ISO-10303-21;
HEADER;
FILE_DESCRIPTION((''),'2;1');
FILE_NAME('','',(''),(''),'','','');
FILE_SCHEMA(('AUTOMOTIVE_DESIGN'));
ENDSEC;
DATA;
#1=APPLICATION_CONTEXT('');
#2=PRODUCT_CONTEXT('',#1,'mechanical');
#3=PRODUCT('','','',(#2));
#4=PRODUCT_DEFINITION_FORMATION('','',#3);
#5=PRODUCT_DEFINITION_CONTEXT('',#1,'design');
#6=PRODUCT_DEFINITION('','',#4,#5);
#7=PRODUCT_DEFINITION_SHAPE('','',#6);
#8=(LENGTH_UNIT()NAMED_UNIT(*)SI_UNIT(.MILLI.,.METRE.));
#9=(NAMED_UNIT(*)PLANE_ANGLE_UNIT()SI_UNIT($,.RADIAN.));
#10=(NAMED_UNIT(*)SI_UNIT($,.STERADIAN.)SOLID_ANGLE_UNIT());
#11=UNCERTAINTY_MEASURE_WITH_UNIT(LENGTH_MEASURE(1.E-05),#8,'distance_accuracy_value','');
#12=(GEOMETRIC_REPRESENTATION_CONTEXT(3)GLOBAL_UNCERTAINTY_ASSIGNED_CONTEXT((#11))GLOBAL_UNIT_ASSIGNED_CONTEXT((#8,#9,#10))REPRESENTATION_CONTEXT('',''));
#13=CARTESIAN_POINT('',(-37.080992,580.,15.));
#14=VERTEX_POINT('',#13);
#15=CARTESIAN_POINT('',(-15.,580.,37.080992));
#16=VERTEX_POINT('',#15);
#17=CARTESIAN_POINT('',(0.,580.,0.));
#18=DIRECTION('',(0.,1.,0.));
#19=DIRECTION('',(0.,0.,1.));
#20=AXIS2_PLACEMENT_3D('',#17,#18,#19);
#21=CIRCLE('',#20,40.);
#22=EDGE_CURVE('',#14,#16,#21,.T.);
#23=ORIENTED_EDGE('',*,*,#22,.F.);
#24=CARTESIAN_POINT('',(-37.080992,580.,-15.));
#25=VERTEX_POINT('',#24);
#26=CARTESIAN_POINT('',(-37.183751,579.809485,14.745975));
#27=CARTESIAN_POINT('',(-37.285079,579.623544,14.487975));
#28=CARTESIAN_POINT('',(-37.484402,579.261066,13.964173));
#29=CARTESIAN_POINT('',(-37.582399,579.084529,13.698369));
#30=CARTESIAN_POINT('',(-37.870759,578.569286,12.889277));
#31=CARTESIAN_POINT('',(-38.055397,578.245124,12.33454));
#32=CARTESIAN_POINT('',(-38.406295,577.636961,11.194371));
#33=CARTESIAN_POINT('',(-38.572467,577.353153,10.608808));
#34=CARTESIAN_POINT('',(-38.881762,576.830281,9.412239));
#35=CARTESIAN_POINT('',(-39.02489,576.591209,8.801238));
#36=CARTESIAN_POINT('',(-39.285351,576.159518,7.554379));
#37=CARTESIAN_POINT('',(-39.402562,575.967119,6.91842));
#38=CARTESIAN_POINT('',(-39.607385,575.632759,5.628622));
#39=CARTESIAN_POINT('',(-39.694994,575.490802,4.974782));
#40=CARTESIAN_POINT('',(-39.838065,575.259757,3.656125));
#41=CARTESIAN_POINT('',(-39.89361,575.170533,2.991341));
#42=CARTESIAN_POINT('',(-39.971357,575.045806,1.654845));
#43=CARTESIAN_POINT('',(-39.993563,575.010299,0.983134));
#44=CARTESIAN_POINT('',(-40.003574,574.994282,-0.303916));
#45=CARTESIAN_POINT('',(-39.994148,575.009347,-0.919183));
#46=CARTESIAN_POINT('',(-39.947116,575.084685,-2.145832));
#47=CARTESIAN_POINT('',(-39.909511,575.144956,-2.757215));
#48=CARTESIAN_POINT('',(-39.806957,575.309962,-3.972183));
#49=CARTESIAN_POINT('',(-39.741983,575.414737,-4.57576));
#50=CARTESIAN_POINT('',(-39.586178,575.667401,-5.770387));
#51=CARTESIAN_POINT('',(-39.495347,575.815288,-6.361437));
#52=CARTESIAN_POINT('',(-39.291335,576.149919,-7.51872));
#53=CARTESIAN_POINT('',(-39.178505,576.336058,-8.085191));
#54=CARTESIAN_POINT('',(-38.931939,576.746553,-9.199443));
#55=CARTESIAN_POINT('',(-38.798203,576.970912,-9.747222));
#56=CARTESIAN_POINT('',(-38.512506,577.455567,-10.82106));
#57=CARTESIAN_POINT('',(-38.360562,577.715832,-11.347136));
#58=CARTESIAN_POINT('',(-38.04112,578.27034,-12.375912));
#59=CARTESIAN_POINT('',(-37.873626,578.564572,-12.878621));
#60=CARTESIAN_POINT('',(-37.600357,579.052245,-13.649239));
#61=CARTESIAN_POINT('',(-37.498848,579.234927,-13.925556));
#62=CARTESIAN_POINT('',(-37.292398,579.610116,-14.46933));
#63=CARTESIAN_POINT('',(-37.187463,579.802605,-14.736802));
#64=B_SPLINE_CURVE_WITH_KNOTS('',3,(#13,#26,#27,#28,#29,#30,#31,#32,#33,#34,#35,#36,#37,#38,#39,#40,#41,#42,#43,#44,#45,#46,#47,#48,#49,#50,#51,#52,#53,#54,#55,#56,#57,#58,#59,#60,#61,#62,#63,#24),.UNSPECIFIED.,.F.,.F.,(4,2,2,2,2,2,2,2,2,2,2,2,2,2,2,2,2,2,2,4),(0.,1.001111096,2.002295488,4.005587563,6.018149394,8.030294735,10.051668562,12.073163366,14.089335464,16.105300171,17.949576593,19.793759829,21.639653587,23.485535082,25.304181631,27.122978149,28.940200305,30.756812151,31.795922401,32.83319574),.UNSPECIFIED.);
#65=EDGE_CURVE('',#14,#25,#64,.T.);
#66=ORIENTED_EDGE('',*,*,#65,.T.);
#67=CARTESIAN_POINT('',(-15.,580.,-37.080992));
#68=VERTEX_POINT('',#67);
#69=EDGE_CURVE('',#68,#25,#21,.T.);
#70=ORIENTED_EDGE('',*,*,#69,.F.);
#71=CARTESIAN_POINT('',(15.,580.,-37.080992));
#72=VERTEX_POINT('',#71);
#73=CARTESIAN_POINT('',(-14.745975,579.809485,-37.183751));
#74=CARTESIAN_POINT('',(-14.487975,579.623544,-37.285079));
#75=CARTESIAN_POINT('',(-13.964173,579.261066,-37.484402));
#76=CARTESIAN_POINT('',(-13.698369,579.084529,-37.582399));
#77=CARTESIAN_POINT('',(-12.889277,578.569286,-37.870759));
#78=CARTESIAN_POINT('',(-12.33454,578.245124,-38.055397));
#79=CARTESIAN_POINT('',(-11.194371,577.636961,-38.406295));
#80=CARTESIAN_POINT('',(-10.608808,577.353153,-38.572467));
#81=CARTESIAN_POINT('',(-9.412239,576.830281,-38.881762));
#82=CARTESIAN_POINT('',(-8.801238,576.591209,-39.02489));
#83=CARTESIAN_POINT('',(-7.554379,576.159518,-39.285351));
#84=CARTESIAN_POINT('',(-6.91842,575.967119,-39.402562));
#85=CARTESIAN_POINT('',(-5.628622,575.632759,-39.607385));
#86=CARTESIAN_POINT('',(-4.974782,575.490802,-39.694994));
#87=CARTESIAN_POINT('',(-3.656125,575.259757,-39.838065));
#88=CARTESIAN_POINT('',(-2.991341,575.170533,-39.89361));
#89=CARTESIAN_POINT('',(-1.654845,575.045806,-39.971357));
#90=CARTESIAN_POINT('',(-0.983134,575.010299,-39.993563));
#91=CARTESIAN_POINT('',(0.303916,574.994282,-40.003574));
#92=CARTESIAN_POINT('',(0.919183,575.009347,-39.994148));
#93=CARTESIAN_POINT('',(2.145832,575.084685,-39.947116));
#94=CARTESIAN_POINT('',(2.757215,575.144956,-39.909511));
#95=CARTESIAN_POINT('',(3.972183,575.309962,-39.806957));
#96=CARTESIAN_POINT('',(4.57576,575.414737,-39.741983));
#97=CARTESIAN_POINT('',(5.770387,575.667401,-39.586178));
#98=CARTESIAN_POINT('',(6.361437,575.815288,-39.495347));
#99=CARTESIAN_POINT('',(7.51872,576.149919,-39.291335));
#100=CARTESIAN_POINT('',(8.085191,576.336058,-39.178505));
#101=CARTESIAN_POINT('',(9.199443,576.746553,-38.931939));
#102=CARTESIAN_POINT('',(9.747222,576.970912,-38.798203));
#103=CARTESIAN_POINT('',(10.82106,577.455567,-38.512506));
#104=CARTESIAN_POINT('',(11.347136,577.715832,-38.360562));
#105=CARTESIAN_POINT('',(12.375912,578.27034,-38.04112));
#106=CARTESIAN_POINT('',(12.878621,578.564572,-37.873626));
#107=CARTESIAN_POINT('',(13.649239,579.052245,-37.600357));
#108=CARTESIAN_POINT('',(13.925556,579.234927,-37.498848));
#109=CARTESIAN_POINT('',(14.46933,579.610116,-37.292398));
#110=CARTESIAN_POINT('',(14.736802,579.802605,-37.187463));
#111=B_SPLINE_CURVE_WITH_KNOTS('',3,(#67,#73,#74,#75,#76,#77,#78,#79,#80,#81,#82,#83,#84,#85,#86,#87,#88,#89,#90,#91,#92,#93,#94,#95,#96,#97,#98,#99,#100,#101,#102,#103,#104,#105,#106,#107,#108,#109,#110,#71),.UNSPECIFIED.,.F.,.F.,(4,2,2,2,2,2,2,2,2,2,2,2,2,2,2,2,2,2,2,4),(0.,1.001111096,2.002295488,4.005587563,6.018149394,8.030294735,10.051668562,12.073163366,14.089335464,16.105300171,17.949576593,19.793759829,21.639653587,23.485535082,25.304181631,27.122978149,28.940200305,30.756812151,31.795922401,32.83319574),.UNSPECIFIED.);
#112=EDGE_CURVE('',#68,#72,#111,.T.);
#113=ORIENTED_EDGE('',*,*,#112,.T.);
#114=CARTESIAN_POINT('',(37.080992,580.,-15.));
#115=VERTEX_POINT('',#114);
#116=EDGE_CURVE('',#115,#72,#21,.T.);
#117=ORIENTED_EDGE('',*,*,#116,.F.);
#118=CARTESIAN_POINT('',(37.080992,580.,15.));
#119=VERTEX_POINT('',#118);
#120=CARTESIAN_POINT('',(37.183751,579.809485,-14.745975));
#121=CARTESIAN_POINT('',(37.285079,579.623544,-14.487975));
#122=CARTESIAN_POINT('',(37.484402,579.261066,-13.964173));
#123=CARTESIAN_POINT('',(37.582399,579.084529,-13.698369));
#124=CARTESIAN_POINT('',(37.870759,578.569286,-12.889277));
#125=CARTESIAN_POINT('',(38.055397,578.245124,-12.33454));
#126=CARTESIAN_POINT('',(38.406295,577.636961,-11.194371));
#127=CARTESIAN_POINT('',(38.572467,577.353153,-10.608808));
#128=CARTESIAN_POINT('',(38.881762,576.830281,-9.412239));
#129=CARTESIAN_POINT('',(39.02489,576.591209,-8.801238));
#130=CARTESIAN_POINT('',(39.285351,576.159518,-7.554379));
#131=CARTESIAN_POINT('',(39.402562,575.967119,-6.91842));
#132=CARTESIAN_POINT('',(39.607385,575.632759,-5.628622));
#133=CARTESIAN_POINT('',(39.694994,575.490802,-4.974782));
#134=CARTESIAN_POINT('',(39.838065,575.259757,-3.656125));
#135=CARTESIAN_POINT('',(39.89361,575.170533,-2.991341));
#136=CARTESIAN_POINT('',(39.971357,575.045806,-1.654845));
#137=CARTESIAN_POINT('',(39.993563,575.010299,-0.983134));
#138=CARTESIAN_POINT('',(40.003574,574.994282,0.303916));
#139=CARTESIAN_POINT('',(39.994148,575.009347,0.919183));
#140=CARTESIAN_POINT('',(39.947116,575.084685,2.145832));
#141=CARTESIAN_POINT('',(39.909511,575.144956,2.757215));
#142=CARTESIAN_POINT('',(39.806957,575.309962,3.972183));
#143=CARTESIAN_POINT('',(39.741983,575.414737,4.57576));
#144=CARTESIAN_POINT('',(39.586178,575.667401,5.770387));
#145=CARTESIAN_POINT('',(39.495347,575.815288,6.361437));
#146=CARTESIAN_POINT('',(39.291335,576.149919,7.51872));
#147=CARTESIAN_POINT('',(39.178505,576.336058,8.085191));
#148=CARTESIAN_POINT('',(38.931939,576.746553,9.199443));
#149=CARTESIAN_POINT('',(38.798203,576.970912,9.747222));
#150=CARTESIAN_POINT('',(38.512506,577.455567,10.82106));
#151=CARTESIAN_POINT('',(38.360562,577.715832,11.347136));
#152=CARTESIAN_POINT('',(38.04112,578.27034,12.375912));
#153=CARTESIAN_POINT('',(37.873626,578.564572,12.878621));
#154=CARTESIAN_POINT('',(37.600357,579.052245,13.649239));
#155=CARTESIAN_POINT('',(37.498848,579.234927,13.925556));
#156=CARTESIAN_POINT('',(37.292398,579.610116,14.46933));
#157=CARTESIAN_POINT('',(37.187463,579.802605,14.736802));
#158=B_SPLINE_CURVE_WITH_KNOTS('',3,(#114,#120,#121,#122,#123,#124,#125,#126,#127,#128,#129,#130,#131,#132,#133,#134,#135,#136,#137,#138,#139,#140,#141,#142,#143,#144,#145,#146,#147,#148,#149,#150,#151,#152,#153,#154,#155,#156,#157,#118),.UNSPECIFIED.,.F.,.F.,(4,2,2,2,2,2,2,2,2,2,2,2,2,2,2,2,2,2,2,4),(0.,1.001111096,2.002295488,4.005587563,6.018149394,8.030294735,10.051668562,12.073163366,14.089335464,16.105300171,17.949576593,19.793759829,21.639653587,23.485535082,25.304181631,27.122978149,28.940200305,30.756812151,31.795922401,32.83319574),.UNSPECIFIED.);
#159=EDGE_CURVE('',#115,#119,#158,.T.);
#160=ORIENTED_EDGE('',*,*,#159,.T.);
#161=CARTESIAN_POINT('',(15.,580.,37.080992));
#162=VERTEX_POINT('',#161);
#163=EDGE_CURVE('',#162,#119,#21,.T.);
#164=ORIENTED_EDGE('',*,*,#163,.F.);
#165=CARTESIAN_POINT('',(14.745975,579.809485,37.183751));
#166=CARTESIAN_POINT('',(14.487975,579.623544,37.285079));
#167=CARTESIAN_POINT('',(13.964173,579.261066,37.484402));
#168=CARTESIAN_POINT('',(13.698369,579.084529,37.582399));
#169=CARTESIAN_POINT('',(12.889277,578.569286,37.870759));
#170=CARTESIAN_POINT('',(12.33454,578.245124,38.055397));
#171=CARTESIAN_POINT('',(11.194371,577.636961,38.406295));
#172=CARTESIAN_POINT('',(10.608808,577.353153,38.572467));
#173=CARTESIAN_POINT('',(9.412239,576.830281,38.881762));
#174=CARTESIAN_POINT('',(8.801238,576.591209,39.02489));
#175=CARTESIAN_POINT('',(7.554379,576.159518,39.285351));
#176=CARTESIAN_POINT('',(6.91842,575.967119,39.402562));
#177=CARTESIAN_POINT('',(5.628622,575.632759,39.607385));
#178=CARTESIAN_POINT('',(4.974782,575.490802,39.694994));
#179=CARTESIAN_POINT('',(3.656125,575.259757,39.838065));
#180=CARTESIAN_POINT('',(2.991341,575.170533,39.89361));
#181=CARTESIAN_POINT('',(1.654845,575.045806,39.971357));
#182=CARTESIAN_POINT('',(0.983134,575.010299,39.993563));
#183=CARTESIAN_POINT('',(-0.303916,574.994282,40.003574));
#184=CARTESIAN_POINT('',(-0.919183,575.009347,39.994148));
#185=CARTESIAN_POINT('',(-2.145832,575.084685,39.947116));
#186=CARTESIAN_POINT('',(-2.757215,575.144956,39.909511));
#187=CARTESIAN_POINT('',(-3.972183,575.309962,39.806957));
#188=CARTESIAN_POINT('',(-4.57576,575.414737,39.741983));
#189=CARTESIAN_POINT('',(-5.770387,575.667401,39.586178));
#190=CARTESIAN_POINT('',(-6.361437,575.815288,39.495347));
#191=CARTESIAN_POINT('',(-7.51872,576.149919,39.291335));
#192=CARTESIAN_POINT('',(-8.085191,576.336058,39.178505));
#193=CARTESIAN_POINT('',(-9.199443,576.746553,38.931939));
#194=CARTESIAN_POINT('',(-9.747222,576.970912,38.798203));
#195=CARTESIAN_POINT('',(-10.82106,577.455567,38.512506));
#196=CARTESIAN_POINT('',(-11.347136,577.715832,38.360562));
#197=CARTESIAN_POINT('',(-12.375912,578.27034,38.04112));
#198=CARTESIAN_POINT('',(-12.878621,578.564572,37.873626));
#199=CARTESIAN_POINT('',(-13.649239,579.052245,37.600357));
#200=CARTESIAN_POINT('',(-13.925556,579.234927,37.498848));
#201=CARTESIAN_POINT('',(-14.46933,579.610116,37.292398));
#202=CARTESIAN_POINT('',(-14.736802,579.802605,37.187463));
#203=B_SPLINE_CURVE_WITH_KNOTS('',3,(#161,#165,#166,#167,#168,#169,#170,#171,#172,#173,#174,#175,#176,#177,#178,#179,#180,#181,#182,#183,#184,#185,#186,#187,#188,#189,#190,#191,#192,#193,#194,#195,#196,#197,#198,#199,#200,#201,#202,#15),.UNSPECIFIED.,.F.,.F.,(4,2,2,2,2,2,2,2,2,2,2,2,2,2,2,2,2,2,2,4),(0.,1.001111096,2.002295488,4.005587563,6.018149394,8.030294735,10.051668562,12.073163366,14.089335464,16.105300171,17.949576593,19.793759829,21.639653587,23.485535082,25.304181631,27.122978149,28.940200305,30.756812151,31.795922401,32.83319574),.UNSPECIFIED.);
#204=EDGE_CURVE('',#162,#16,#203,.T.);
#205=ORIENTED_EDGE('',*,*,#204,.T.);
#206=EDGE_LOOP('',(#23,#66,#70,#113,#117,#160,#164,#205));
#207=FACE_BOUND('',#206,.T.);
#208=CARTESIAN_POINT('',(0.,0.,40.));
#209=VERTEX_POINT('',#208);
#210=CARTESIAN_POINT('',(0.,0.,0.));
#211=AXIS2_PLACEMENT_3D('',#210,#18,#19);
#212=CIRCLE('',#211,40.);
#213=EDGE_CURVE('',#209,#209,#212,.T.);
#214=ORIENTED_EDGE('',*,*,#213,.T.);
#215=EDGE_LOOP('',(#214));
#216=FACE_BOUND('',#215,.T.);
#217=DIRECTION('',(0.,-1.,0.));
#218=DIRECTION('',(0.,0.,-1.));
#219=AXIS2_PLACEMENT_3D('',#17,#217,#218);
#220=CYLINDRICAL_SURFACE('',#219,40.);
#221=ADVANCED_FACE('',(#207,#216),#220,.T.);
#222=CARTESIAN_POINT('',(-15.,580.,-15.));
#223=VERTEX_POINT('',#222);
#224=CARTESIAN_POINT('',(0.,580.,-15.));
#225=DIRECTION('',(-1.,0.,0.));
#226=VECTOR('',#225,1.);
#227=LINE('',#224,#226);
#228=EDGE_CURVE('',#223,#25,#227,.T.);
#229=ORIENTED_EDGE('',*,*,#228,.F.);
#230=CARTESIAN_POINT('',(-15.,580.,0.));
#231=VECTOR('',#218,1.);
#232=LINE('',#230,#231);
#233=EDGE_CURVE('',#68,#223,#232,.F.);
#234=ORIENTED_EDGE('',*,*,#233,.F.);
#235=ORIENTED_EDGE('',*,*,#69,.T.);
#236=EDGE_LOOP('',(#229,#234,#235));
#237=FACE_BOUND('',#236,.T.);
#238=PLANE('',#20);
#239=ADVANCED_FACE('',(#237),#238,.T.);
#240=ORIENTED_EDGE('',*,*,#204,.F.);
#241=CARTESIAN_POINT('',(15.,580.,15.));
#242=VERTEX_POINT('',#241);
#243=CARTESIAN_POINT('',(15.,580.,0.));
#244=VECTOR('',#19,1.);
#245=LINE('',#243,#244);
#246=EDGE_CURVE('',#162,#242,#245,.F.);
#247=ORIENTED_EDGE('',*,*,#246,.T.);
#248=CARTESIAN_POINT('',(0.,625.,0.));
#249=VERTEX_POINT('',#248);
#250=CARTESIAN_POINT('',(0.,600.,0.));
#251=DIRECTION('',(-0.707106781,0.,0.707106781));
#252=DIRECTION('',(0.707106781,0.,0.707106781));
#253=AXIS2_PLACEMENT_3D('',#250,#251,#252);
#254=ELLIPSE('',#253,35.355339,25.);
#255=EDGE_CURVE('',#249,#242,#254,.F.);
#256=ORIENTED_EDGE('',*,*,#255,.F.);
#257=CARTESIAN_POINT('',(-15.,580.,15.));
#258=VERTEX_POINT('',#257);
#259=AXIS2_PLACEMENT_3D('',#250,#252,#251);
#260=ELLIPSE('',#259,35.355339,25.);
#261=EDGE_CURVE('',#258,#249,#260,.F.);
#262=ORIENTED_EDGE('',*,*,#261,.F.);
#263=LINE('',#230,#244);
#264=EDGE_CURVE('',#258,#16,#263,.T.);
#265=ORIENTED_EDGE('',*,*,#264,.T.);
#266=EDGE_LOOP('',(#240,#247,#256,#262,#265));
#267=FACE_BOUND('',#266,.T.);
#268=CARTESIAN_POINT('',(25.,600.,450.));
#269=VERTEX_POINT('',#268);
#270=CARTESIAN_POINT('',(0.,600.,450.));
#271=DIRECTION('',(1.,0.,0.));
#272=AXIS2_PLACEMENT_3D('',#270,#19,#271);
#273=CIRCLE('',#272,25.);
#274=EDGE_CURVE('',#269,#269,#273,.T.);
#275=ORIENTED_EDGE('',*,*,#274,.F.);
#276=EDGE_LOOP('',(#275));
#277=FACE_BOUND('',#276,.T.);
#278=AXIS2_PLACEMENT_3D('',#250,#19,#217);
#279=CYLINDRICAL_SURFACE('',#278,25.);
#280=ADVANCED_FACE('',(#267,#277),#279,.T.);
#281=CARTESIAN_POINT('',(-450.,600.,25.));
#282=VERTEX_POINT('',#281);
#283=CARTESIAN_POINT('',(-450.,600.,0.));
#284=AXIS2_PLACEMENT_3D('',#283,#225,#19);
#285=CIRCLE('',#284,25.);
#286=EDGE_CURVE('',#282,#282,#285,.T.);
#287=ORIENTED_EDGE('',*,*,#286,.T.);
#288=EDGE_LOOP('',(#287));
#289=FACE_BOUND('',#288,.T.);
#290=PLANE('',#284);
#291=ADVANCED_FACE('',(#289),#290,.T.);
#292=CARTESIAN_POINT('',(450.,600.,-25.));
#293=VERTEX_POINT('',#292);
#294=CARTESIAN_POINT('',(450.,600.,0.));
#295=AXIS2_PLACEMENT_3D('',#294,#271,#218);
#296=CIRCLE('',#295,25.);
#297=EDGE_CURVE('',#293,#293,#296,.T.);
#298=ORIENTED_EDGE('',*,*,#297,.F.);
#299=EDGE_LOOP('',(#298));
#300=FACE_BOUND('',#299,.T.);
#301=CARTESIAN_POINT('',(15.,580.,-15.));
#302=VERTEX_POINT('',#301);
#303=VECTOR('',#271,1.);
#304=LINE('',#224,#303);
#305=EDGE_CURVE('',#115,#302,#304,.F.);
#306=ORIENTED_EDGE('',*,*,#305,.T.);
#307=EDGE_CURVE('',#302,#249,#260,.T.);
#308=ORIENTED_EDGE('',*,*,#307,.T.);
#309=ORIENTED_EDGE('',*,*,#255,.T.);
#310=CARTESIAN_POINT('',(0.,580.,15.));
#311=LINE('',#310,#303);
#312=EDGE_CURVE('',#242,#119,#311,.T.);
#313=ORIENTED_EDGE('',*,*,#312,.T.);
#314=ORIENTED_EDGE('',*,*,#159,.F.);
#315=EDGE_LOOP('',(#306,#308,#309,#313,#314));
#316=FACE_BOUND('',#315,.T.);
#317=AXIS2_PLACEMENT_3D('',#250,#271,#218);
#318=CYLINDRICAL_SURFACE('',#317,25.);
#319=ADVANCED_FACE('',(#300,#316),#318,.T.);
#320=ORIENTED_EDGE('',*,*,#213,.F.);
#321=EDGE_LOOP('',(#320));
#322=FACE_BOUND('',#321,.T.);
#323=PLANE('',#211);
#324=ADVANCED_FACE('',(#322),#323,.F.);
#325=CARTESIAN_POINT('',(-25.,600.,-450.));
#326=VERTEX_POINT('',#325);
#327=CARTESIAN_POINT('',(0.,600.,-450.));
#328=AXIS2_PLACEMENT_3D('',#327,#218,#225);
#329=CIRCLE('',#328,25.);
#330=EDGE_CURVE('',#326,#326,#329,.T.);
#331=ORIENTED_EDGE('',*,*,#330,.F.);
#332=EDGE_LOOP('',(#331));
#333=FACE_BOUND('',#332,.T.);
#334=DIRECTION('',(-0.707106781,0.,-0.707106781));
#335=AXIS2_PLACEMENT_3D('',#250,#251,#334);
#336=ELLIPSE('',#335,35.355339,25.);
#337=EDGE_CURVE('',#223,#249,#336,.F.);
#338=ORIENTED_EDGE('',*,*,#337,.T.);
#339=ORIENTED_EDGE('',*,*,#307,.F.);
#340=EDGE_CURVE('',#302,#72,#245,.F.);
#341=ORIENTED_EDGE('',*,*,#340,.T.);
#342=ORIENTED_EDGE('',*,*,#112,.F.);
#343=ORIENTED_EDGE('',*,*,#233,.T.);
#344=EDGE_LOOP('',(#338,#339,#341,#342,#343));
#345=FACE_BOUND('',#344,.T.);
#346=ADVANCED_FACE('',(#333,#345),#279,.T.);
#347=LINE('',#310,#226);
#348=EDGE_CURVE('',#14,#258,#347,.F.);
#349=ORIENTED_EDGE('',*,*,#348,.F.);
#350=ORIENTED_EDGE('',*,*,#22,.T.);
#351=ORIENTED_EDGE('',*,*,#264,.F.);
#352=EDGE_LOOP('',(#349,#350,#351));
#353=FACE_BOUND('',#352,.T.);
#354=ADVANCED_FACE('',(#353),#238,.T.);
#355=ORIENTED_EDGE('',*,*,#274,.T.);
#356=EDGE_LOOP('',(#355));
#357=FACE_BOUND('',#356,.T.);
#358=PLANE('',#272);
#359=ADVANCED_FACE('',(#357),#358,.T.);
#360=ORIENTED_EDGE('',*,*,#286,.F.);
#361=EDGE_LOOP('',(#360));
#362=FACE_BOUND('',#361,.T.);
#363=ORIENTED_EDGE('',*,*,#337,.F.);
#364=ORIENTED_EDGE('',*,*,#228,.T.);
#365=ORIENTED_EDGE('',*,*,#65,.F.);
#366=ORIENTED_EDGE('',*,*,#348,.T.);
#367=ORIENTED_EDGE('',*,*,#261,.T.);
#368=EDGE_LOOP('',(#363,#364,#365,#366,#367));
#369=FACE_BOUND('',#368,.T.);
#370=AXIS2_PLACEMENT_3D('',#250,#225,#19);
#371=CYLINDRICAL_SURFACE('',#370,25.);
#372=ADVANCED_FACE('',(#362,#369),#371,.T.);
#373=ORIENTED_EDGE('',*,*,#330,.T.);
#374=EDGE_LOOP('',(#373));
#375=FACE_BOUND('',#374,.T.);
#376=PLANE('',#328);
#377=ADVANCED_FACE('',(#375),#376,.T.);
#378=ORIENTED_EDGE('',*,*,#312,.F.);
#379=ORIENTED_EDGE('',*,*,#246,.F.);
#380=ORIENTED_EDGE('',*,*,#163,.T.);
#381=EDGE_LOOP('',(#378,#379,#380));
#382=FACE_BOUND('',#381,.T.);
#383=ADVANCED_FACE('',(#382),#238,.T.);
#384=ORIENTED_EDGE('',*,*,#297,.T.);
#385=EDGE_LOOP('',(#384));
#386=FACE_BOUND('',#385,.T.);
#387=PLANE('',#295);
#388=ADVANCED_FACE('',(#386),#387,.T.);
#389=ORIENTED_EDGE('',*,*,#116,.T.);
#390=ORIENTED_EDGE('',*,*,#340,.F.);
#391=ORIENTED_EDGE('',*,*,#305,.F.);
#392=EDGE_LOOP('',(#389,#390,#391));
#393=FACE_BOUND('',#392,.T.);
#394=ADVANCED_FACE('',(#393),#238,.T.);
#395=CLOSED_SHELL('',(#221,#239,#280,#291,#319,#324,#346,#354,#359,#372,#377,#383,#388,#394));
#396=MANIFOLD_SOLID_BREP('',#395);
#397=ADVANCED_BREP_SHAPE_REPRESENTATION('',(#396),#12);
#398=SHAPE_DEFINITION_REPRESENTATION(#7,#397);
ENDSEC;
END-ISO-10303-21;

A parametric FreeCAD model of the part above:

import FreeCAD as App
import Part
import Sketcher
from FreeCAD import Vector
Q = App.Units.Quantity

doc = App.newDocument("Part")
body = doc.addObject("PartDesign::Body", "Body")

# Sketch on XZ plane
sketch1 = body.newObject("Sketcher::SketchObject", "Sketch")
sketch1.AttachmentSupport = (doc.getObject("XZ_Plane"), [""])
sketch1.MapMode = "FlatFace"
sketch1.addGeometry(Part.Circle(Vector(0, 0, 0), Vector(0, 0, 1), 40), False)
sketch1.addConstraint(Sketcher.Constraint("Coincident", 0, 3, -1, 1))
sketch1.addConstraint(Sketcher.Constraint("Diameter", 0, Q("80 mm")))
pad1 = body.newObject("PartDesign::Pad", "Pad")
pad1.Profile = sketch1
pad1.Length = 580
pad1.Reversed = True

# Sketch on XY plane
sketch2 = body.newObject("Sketcher::SketchObject", "Sketch001")
sketch2.AttachmentSupport = (doc.getObject("XY_Plane"), [""])
sketch2.MapMode = "FlatFace"
sketch2.addGeometry(Part.Circle(Vector(0, 600, 0), Vector(0, 0, 1), 25), False)
sketch2.addConstraint(Sketcher.Constraint("PointOnObject", 0, 3, -2))
sketch2.addConstraint(Sketcher.Constraint("Diameter", 0, Q("50 mm")))
sketch2.addConstraint(Sketcher.Constraint("DistanceY", -1, 1, 0, 3, Q("600 mm")))

# Sketch on XZ plane
sketch3 = body.newObject("Sketcher::SketchObject", "Sketch002")
sketch3.AttachmentSupport = (doc.getObject("XZ_Plane"), [""])
sketch3.MapMode = "FlatFace"
sketch3.AttachmentOffset = App.Placement(Vector(0, 0, -600), App.Rotation())
sketch3.addGeometry(Part.LineSegment(Vector(0, 0, 0), Vector(0, 450, 0)), False)
sketch3.addConstraint(Sketcher.Constraint("Vertical", 0))
sketch3.addConstraint(Sketcher.Constraint("Coincident", 0, 1, -1, 1))
sketch3.addConstraint(Sketcher.Constraint("DistanceY", 0, 1, 0, 2, Q("450 mm")))
doc.recompute()

additivepipe = body.newObject("PartDesign::AdditivePipe", "AdditivePipe")
additivepipe.Profile = sketch2
additivepipe.Spine = (sketch3, ["Edge1"])
doc.recompute()

polarpattern = body.newObject("PartDesign::PolarPattern", "PolarPattern")
polarpattern.Originals = [additivepipe]
polarpattern.Axis = (doc.getObject("Y_Axis"), [""])
polarpattern.Angle = 360
polarpattern.Occurrences = 4
body.Tip = polarpattern

doc.recompute()
